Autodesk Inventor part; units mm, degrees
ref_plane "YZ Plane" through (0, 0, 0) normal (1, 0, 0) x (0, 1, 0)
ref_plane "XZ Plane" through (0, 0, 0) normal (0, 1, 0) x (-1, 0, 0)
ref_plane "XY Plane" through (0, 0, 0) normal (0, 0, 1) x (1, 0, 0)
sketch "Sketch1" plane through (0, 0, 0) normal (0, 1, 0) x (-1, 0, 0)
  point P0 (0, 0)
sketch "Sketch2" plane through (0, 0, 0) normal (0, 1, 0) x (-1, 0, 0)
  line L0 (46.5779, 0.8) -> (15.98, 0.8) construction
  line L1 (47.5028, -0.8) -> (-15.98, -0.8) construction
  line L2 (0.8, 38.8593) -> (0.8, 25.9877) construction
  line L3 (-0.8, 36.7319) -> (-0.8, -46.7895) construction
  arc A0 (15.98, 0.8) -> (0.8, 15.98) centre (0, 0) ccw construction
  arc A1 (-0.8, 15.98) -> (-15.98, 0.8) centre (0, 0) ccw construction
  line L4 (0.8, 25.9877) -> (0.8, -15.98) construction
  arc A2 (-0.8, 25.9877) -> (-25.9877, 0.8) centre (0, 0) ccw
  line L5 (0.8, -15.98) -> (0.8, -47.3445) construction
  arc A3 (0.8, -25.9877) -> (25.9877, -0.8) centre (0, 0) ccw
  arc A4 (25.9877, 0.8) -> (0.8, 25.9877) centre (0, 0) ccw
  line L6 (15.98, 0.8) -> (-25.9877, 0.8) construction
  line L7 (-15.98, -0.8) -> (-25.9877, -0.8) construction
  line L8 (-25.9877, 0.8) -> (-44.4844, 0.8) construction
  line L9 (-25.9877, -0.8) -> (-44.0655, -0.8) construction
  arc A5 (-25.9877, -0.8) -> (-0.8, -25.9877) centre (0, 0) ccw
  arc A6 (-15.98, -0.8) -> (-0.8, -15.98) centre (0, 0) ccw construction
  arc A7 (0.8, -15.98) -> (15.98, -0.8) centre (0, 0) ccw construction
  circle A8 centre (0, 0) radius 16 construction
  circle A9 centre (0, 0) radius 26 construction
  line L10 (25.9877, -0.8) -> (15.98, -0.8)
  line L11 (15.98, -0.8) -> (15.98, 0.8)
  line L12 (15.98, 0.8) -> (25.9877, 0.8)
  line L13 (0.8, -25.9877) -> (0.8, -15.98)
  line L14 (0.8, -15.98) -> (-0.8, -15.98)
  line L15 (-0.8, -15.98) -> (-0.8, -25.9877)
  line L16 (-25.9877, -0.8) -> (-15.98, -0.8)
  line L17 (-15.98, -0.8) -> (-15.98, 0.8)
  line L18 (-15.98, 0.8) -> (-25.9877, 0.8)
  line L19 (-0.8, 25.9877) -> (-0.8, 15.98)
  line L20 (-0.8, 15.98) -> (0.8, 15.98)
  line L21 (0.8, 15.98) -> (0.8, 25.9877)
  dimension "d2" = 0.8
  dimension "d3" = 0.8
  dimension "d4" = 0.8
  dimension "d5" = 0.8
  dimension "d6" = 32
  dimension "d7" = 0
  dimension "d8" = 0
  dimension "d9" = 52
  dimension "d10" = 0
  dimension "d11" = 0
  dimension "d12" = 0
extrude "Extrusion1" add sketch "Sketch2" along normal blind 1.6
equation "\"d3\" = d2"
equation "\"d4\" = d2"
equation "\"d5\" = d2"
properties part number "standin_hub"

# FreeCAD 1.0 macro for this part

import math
import FreeCAD as App
import Part
import Sketcher

V = App.Vector
Q = App.Units.Quantity

doc = App.newDocument("Part")
body = doc.addObject("PartDesign::Body", "Body")

sketch1 = body.newObject("Sketcher::SketchObject", "Sketch")
sketch1.AttachmentSupport = (doc.getObject("XZ_Plane"), [""])
sketch1.MapMode = "FlatFace"
sketch1.addGeometry([
    Part.LineSegment(V(0.8, 16, 0), V(0.8, 26, 0)),
    Part.ArcOfCircle(Part.Circle(V(0, 0, 0), V(0, 0, 1), 26), math.radians(2), math.radians(88)),
    Part.LineSegment(V(26, 0.8, 0), V(16, 0.8, 0)),
    Part.LineSegment(V(16, 0.8, 0), V(16, -0.8, 0)),
    Part.LineSegment(V(16, -0.8, 0), V(26, -0.8, 0)),
    Part.ArcOfCircle(Part.Circle(V(0, 0, 0), V(0, 0, 1), 26), math.radians(-88), math.radians(-2)),
    Part.LineSegment(V(0.8, -26, 0), V(0.8, -16, 0)),
    Part.LineSegment(V(0.8, -16, 0), V(-0.8, -16, 0)),
    Part.LineSegment(V(-0.8, -16, 0), V(-0.8, -26, 0)),
    Part.ArcOfCircle(Part.Circle(V(0, 0, 0), V(0, 0, 1), 26), math.radians(-178), math.radians(-92)),
    Part.LineSegment(V(-26, -0.8, 0), V(-16, -0.8, 0)),
    Part.LineSegment(V(-16, -0.8, 0), V(-16, 0.8, 0)),
    Part.LineSegment(V(-16, 0.8, 0), V(-26, 0.8, 0)),
    Part.ArcOfCircle(Part.Circle(V(0, 0, 0), V(0, 0, 1), 26), math.radians(92), math.radians(178)),
    Part.LineSegment(V(-0.8, 26, 0), V(-0.8, 16, 0)),
    Part.LineSegment(V(-0.8, 16, 0), V(0.8, 16, 0)),
], False)
sketch1.addConstraint([
    Sketcher.Constraint("Coincident", 0, 2, 1, 2),
    Sketcher.Constraint("Coincident", 1, 1, 2, 1),
    Sketcher.Constraint("Coincident", 2, 2, 3, 1),
    Sketcher.Constraint("Coincident", 3, 2, 4, 1),
    Sketcher.Constraint("Coincident", 4, 2, 5, 2),
    Sketcher.Constraint("Coincident", 5, 1, 6, 1),
    Sketcher.Constraint("Coincident", 6, 2, 7, 1),
    Sketcher.Constraint("Coincident", 7, 2, 8, 1),
    Sketcher.Constraint("Coincident", 8, 2, 9, 2),
    Sketcher.Constraint("Coincident", 9, 1, 10, 1),
    Sketcher.Constraint("Coincident", 10, 2, 11, 1),
    Sketcher.Constraint("Coincident", 11, 2, 12, 1),
    Sketcher.Constraint("Coincident", 12, 2, 13, 2),
    Sketcher.Constraint("Coincident", 13, 1, 14, 1),
    Sketcher.Constraint("Coincident", 14, 2, 15, 1),
    Sketcher.Constraint("Coincident", 15, 2, 0, 1),
    Sketcher.Constraint("Vertical", 0),
    Sketcher.Constraint("Horizontal", 2),
    Sketcher.Constraint("Vertical", 3),
    Sketcher.Constraint("Horizontal", 4),
    Sketcher.Constraint("Vertical", 6),
    Sketcher.Constraint("Horizontal", 7),
    Sketcher.Constraint("Vertical", 8),
    Sketcher.Constraint("Horizontal", 10),
    Sketcher.Constraint("Vertical", 11),
    Sketcher.Constraint("Horizontal", 12),
    Sketcher.Constraint("Vertical", 14),
    Sketcher.Constraint("Horizontal", 15),
    Sketcher.Constraint("Coincident", 1, 3, -1, 1),
    Sketcher.Constraint("Coincident", 5, 3, -1, 1),
    Sketcher.Constraint("Coincident", 9, 3, -1, 1),
    Sketcher.Constraint("Coincident", 13, 3, -1, 1),
    Sketcher.Constraint("Equal", 1, 5),
    Sketcher.Constraint("Equal", 5, 9),
    Sketcher.Constraint("Equal", 9, 13),
    Sketcher.Constraint("Symmetric", 2, 2, 10, 2, -1, 1),
    Sketcher.Constraint("Symmetric", 6, 2, 14, 2, -1, 1),
    Sketcher.Constraint("Horizontal", 5, 1, 8, 2),
    Sketcher.Constraint("Horizontal", 4, 2, 9, 1),
    Sketcher.Constraint("Horizontal", 2, 2, 11, 2),
    Sketcher.Constraint("Horizontal", 0, 2, 13, 1),
    Sketcher.Constraint("Equal", 12, 0),
    Sketcher.Constraint("Equal", 15, 3),
    Sketcher.Constraint("Radius", 1, Q("26 mm")),
    Sketcher.Constraint("DistanceX", -1, 1, 0, 2, Q("0.0315 in")),
    Sketcher.Constraint("DistanceX", 2, 2, 2, 1, Q("0.394 in")),
])
pad1 = body.newObject("PartDesign::Pad", "Pad")
pad1.Profile = sketch1
pad1.Length = Q("0.0629921 in")
pad1.Reversed = True

doc.recompute()
